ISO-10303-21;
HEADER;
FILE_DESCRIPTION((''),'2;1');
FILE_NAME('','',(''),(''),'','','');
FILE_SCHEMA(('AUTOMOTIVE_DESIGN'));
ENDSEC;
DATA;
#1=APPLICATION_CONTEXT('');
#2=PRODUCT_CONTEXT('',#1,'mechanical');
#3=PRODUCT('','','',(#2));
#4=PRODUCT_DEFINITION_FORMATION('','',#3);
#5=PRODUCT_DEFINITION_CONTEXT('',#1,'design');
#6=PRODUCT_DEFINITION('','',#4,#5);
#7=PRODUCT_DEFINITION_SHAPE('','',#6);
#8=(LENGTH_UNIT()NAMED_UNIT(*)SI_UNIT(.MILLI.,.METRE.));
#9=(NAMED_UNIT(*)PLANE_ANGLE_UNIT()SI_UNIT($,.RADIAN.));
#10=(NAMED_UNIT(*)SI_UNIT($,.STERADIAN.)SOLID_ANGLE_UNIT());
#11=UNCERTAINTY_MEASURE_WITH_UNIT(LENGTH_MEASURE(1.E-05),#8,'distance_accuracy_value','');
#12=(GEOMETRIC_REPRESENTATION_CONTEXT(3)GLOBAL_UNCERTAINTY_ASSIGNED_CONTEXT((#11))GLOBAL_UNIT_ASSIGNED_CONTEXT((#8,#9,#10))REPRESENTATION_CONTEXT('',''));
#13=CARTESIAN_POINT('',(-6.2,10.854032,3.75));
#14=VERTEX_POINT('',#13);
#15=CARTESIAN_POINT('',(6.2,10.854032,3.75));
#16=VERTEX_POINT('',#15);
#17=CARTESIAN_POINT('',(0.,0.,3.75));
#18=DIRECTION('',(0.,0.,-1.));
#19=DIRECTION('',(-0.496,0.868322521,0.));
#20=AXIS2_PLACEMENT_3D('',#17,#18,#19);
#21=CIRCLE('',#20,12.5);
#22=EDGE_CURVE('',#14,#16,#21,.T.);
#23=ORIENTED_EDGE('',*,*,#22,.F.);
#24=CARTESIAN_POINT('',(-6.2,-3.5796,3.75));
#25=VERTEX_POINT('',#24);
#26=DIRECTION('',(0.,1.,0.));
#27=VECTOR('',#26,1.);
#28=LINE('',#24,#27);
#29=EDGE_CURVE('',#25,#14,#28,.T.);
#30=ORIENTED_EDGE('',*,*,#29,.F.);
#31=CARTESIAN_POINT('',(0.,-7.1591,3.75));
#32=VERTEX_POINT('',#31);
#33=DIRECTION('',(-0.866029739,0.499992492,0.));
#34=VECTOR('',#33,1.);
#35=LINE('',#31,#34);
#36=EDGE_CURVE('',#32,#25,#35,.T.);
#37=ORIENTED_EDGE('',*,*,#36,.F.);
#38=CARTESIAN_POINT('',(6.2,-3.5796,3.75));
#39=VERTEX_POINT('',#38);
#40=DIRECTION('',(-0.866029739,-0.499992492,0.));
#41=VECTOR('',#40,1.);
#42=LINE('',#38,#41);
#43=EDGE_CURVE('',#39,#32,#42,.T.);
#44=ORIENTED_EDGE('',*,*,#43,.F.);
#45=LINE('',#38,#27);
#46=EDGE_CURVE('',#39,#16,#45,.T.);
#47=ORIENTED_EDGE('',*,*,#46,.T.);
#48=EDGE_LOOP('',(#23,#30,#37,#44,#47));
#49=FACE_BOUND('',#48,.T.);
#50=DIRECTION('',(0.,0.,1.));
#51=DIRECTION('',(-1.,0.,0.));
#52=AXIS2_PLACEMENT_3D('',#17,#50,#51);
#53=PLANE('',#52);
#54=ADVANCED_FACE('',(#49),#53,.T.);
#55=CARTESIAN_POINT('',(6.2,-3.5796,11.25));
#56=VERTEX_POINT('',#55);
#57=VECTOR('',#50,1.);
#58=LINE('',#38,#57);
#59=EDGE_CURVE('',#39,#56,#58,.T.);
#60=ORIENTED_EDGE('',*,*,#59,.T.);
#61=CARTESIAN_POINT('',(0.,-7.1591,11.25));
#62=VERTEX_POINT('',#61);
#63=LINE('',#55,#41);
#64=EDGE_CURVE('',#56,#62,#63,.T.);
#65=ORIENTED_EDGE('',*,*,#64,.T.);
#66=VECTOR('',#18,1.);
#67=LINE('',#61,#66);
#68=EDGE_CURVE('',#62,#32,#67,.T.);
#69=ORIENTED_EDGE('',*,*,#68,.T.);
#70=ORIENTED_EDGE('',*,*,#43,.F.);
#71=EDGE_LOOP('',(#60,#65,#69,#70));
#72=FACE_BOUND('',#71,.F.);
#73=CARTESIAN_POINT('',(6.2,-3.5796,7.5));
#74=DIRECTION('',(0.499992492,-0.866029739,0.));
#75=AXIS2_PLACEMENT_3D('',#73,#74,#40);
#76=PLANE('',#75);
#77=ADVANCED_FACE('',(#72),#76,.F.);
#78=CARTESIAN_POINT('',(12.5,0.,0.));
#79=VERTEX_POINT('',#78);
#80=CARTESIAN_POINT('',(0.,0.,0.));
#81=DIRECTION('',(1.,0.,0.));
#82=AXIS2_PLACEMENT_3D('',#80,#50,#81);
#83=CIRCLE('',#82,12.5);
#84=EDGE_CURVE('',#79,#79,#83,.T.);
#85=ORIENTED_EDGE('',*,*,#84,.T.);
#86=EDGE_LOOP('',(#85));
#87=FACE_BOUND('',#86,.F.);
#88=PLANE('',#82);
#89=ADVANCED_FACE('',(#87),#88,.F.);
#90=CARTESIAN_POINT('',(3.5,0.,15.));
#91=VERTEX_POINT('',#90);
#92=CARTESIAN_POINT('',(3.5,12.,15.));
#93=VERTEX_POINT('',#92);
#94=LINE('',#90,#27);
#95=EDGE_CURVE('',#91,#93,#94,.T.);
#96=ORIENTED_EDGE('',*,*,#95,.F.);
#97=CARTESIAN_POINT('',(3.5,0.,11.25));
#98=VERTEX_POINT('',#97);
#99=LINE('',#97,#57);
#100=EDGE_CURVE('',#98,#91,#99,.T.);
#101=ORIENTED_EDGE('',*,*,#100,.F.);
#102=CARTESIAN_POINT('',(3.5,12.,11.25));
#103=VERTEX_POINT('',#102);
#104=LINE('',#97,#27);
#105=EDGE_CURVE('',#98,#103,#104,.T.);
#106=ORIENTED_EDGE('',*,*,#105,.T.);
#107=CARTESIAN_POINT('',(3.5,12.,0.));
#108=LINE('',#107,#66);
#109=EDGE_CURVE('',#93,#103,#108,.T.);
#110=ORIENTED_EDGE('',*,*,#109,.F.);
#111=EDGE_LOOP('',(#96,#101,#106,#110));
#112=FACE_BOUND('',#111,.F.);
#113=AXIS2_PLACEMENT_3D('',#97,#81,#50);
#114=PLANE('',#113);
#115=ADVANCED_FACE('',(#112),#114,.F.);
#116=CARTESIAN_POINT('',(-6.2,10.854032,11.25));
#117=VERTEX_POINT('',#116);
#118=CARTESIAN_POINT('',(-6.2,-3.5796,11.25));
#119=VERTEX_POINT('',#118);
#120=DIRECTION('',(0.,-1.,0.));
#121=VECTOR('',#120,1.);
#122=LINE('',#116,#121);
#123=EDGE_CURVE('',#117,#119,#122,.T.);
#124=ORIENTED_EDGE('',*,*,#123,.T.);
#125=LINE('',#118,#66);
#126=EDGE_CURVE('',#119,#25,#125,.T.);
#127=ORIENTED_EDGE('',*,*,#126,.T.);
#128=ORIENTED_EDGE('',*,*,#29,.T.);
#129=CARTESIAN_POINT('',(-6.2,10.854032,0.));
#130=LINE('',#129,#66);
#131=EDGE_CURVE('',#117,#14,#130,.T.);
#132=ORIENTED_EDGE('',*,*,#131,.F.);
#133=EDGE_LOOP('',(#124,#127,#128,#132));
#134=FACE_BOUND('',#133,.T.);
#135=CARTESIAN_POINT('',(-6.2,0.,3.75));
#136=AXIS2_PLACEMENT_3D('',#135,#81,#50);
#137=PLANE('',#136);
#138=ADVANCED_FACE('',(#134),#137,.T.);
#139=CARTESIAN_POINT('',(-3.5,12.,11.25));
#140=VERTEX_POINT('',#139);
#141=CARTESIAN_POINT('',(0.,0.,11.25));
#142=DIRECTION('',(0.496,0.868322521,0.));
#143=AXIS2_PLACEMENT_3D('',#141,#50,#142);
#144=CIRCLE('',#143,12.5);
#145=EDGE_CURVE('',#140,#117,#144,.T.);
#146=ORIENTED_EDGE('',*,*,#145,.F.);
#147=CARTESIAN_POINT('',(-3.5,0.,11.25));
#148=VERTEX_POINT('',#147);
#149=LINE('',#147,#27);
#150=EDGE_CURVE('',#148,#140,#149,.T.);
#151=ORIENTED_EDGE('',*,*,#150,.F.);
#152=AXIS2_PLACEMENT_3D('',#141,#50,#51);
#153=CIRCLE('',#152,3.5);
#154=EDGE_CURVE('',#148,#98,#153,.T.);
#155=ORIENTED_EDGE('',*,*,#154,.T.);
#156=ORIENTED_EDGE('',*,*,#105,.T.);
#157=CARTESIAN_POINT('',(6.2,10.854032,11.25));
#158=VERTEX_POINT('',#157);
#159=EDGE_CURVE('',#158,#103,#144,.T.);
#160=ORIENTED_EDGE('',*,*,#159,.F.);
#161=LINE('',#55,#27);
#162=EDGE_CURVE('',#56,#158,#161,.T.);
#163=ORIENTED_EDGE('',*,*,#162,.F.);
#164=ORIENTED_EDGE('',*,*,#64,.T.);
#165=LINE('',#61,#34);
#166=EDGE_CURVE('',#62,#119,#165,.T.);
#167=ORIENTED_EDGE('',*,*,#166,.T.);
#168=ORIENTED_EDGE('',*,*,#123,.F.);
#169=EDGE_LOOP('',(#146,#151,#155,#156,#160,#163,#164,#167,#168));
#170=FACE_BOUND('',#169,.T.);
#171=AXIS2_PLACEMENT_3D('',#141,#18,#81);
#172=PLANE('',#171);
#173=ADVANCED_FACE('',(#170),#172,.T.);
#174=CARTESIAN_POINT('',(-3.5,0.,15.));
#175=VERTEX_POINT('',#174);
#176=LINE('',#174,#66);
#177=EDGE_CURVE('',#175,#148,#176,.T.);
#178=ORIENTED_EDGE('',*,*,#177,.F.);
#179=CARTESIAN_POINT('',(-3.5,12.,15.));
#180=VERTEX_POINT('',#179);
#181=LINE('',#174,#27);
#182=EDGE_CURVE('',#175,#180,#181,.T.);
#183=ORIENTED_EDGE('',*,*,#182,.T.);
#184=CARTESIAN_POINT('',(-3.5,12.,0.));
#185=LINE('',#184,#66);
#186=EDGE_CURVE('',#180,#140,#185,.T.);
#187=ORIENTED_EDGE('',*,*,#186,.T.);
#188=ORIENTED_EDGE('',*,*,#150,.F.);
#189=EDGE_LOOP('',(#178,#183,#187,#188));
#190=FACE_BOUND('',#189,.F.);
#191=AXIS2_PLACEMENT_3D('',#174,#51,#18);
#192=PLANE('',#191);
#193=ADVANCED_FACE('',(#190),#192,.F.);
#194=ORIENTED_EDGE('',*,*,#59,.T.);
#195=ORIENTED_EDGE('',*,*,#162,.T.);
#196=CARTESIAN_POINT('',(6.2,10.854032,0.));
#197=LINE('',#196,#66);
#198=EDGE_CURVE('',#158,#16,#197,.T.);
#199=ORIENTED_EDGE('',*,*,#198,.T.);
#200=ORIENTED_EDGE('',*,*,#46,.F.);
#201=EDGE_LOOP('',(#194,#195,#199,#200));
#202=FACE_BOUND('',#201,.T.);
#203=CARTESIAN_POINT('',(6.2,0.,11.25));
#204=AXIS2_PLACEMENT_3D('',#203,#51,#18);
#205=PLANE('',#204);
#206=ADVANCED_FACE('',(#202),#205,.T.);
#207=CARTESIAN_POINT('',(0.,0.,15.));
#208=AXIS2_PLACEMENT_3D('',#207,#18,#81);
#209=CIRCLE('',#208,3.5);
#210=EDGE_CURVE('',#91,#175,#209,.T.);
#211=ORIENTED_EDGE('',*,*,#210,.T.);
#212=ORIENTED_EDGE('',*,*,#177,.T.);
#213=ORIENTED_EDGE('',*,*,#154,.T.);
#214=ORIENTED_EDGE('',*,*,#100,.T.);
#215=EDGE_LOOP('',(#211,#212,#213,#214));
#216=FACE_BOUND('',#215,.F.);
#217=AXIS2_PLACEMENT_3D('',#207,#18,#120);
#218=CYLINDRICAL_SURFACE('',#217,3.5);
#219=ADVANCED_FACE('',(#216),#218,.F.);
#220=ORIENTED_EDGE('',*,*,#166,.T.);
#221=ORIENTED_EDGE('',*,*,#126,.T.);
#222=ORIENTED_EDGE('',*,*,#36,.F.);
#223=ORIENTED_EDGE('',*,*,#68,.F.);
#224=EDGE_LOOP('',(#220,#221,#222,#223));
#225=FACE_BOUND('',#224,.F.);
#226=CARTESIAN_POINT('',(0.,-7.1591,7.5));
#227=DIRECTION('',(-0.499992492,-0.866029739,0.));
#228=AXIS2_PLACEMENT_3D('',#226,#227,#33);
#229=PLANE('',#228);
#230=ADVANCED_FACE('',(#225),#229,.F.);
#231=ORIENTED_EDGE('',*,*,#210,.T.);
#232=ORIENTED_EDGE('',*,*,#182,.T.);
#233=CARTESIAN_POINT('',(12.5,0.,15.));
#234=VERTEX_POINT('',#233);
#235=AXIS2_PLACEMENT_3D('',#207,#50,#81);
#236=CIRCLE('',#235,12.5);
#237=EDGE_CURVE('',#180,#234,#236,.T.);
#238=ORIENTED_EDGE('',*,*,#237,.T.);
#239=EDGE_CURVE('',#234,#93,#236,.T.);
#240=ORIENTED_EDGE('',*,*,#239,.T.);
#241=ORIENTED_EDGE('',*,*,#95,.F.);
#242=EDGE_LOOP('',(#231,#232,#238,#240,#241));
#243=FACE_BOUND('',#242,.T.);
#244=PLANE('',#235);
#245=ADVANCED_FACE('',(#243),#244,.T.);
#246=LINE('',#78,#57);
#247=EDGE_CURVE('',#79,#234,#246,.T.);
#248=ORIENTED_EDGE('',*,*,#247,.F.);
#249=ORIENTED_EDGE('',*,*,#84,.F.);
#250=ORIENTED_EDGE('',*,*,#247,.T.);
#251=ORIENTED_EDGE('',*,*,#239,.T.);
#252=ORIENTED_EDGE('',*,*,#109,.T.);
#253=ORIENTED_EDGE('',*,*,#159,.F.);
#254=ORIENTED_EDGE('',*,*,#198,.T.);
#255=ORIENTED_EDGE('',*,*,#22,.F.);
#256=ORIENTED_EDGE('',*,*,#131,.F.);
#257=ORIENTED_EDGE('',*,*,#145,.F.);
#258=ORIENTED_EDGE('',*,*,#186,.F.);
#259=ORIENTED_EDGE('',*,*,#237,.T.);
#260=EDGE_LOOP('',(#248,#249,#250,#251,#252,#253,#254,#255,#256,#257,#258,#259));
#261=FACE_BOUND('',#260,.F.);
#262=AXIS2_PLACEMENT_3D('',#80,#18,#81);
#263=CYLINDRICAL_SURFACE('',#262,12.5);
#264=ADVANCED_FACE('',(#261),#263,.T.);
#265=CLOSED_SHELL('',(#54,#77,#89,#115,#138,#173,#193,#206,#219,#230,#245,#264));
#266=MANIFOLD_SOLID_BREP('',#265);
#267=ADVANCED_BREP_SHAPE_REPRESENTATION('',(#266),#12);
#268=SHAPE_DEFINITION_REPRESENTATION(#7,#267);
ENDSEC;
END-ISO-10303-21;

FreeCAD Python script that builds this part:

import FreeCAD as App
import Part
import Sketcher

V = App.Vector
Q = App.Units.Quantity


def add_polygon(sketch, points):
    """Adds a closed chain of lines whose ends are joined by coincident constraints."""
    first, n = sketch.GeometryCount, len(points)
    for a, b in zip(points, points[1:] + points[:1]):
        sketch.addGeometry(Part.LineSegment(App.Vector(*a, 0), App.Vector(*b, 0)), False)
    for i in range(n):
        sketch.addConstraint(Sketcher.Constraint("Coincident", first + i, 2, first + (i + 1) % n, 1))

doc = App.newDocument("Part")
body = doc.addObject("PartDesign::Body", "Body")

sketch1 = body.newObject("Sketcher::SketchObject", "Sketch")
sketch1.AttachmentSupport = (doc.getObject("XY_Plane"), [""])
sketch1.MapMode = "FlatFace"
sketch1.addGeometry(Part.Circle(V(0, 0, 0), V(0, 0, 1), 12.5), False)
sketch1.addConstraint([
    Sketcher.Constraint("Coincident", 0, 3, -1, 1),
    Sketcher.Constraint("Diameter", 0, Q("25 mm")),
])
pad1 = body.newObject("PartDesign::Pad", "Pad")
pad1.Profile = sketch1
pad1.Length = 15

sketch2 = body.newObject("Sketcher::SketchObject", "Sketch001")
sketch2.AttachmentSupport = (doc.getObject("XY_Plane"), [""])
sketch2.MapMode = "FlatFace"
sketch2.AttachmentOffset = App.Placement(V(0, 0, 7.5), App.Rotation())
add_polygon(sketch2, [(0, -7.1591), (6.2, -3.5796), (6.2, 3.5796), (0, 7.1591), (-6.2, 3.5796), (-6.2, -3.5796)])
sketch2.addConstraint([
    Sketcher.Constraint("Vertical", 1),
    Sketcher.Constraint("Vertical", 4),
    Sketcher.Constraint("Symmetric", 0, 2, 3, 2, -1, 1),
    Sketcher.Constraint("Symmetric", 2, 2, 5, 2, -1, 1),
    Sketcher.Constraint("PointOnObject", 2, 2, -2),
    Sketcher.Constraint("Parallel", 2, 5),
    Sketcher.Constraint("Horizontal", 1, 2, 3, 2),
    Sketcher.Constraint("DistanceX", 3, 2, 1, 2, Q("12.4 mm")),
    Sketcher.Constraint("Angle", 0, Q("29.9995 deg")),
    Sketcher.Constraint("DistanceY", 1, 1, 1, 2, Q("7.1592 mm")),
])
pocket1 = body.newObject("PartDesign::Pocket", "Pocket")
pocket1.Profile = sketch2
pocket1.Length = 7.5
pocket1.Midplane = True

sketch3 = body.newObject("Sketcher::SketchObject", "Sketch002")
sketch3.AttachmentSupport = (doc.getObject("XZ_Plane"), [""])
sketch3.MapMode = "FlatFace"
add_polygon(sketch3, [(-6.2, 3.75), (-6.2, 11.25), (6.2, 11.25), (6.2, 3.75)])
sketch3.addConstraint([
    Sketcher.Constraint("Vertical", 0),
    Sketcher.Constraint("Horizontal", 1),
    Sketcher.Constraint("Vertical", 2),
    Sketcher.Constraint("Horizontal", 3),
    Sketcher.Constraint("DistanceX", 1, 1, 1, 2, Q("12.4 mm")),
    Sketcher.Constraint("DistanceY", 0, 1, 0, 2, Q("7.5 mm")),
    Sketcher.Constraint("DistanceX", 0, 2, -1, 1, Q("6.2 mm")),
    Sketcher.Constraint("DistanceY", -1, 1, 0, 2, Q("11.25 mm")),
])
pocket2 = body.newObject("PartDesign::Pocket", "Pocket001")
pocket2.Profile = sketch3
pocket2.Length = 15

sketch4 = body.newObject("Sketcher::SketchObject", "Sketch003")
sketch4.AttachmentSupport = (doc.getObject("XY_Plane"), [""])
sketch4.MapMode = "FlatFace"
sketch4.AttachmentOffset = App.Placement(V(0, 0, 15), App.Rotation())
sketch4.addGeometry(Part.Circle(V(0, 0, 0), V(0, 0, 1), 3.5), False)
sketch4.addConstraint([
    Sketcher.Constraint("Coincident", 0, 3, -1, 1),
    Sketcher.Constraint("Diameter", 0, Q("7 mm")),
])
doc.recompute()
hole = body.newObject("PartDesign::Hole", "Hole")
hole.Profile = sketch4
hole.ThreadType = "None"
hole.Diameter = 7
hole.DepthType = "Dimension"
hole.Depth = 7.5
hole.DrillPoint = "Flat"

sketch5 = body.newObject("Sketcher::SketchObject", "Sketch004")
sketch5.AttachmentSupport = (doc.getObject("XZ_Plane"), [""])
sketch5.MapMode = "FlatFace"
add_polygon(sketch5, [(3.5, 11.25), (-3.5, 11.25), (-3.5, 15), (3.5, 15)])
sketch5.addConstraint([
    Sketcher.Constraint("Horizontal", 0),
    Sketcher.Constraint("Vertical", 1),
    Sketcher.Constraint("Horizontal", 2),
    Sketcher.Constraint("Vertical", 3),
    Sketcher.Constraint("DistanceX", 0, 2, 0, 1, Q("7 mm")),
    Sketcher.Constraint("DistanceY", -1, 1, 1, 2, Q("15 mm")),
    Sketcher.Constraint("DistanceY", 1, 1, 1, 2, Q("3.75 mm")),
    Sketcher.Constraint("DistanceX", 0, 2, -1, 1, Q("3.5 mm")),
])
pocket3 = body.newObject("PartDesign::Pocket", "Pocket002")
pocket3.Profile = sketch5
pocket3.Length = 15

doc.recompute()
